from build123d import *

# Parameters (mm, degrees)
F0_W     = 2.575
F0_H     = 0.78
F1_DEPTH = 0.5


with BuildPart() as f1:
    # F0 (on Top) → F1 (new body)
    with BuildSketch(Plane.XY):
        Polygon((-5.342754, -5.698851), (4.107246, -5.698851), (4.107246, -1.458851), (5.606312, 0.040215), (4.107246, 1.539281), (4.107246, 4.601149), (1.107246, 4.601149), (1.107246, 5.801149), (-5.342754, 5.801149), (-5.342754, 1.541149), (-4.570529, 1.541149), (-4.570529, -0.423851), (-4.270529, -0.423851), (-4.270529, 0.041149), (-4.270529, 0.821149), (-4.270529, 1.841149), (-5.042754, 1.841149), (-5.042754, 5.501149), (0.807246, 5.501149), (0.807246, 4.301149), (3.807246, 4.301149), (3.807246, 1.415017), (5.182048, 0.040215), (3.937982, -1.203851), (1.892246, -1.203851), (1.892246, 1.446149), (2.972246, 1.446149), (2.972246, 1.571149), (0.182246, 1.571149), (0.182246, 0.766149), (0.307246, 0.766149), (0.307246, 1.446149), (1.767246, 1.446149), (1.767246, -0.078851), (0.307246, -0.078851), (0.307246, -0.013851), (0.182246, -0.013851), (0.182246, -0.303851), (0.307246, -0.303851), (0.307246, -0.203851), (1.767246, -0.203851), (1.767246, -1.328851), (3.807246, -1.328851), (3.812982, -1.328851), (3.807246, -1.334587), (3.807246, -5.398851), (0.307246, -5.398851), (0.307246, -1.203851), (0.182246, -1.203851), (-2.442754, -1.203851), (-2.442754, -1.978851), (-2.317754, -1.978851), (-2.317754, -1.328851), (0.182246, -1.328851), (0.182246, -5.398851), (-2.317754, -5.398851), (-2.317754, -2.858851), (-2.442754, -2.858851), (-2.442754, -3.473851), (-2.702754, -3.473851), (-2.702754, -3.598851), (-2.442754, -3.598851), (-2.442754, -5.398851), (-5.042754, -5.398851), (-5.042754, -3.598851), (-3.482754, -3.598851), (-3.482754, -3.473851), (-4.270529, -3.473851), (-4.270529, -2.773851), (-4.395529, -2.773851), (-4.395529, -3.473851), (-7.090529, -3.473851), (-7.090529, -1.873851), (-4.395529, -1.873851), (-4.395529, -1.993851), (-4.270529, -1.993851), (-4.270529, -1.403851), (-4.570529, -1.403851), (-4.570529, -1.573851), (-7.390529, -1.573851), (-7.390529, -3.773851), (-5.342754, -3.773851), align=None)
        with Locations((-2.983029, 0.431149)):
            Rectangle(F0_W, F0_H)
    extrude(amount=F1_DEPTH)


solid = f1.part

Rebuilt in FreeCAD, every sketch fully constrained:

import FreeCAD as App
import Part
import Sketcher

V = App.Vector
Q = App.Units.Quantity

doc = App.newDocument("Part")
params = doc.addObject("Spreadsheet::Sheet", "Params")
for row, (alias, value) in enumerate([
    ("sketch1_width", "3 mm"),
    ("sketch1_width2", "0.3 mm"),
    ("sketch1_width3", "3.5 mm"),
    ("sketch1_width4", "2.5 mm"),
    ("sketch1_width5", "2.6 mm"),
    ("pad1_length", "0.5 mm"),
], start=1):
    params.set(f"A{row}", alias)
    params.set(f"B{row}", "=" + value)
    params.setAlias(f"B{row}", alias)

body = doc.addObject("PartDesign::Body", "Body")

# Sketch on XY plane
sketch1 = doc.addObject("Sketcher::SketchObject", "Sketch")
body.addObject(sketch1)
sketch1.AttachmentSupport = (doc.XY_Plane, [""])
sketch1.MapMode = "FlatFace"
sketch1.addGeometry([
    Part.LineSegment(V(-5.342754, -5.698851, 0), V(4.107246, -5.698851, 0)),  # 0
    Part.LineSegment(V(4.107246, -5.698851, 0), V(4.107246, -1.458851, 0)),  # 1
    Part.LineSegment(V(4.107246, -1.458851, 0), V(5.606312, 0.040215, 0)),  # 2
    Part.LineSegment(V(5.606312, 0.040215, 0), V(4.107246, 1.539281, 0)),  # 3
    Part.LineSegment(V(4.107246, 1.539281, 0), V(4.107246, 4.601149, 0)),  # 4
    Part.LineSegment(V(4.107246, 4.601149, 0), V(1.107246, 4.601149, 0)),  # 5
    Part.LineSegment(V(1.107246, 4.601149, 0), V(1.107246, 5.801149, 0)),  # 6
    Part.LineSegment(V(1.107246, 5.801149, 0), V(-5.342754, 5.801149, 0)),  # 7
    Part.LineSegment(V(-5.342754, 5.801149, 0), V(-5.342754, 1.541149, 0)),  # 8
    Part.LineSegment(V(-5.342754, 1.541149, 0), V(-4.570529, 1.541149, 0)),  # 9
    Part.LineSegment(V(-4.570529, 1.541149, 0), V(-4.570529, -0.423851, 0)),  # 10
    Part.LineSegment(V(-4.570529, -0.423851, 0), V(-4.270529, -0.423851, 0)),  # 11
    Part.LineSegment(V(-4.270529, -0.423851, 0), V(-4.270529, 0.041149, 0)),  # 12
    Part.LineSegment(V(-4.270529, 0.041149, 0), V(-1.695529, 0.041149, 0)),  # 13
    Part.LineSegment(V(-1.695529, 0.041149, 0), V(-1.695529, 0.821149, 0)),  # 14
    Part.LineSegment(V(-1.695529, 0.821149, 0), V(-4.270529, 0.821149, 0)),  # 15
    Part.LineSegment(V(-4.270529, 0.821149, 0), V(-4.270529, 1.841149, 0)),  # 16
    Part.LineSegment(V(-4.270529, 1.841149, 0), V(-5.042754, 1.841149, 0)),  # 17
    Part.LineSegment(V(-5.042754, 1.841149, 0), V(-5.042754, 5.501149, 0)),  # 18
    Part.LineSegment(V(-5.042754, 5.501149, 0), V(0.807246, 5.501149, 0)),  # 19
    Part.LineSegment(V(0.807246, 5.501149, 0), V(0.807246, 4.301149, 0)),  # 20
    Part.LineSegment(V(0.807246, 4.301149, 0), V(3.807246, 4.301149, 0)),  # 21
    Part.LineSegment(V(3.807246, 4.301149, 0), V(3.807246, 1.415017, 0)),  # 22
    Part.LineSegment(V(3.807246, 1.415017, 0), V(5.182048, 0.040215, 0)),  # 23
    Part.LineSegment(V(5.182048, 0.040215, 0), V(3.937982, -1.203851, 0)),  # 24
    Part.LineSegment(V(3.937982, -1.203851, 0), V(1.892246, -1.203851, 0)),  # 25
    Part.LineSegment(V(1.892246, -1.203851, 0), V(1.892246, 1.446149, 0)),  # 26
    Part.LineSegment(V(1.892246, 1.446149, 0), V(2.972246, 1.446149, 0)),  # 27
    Part.LineSegment(V(2.972246, 1.446149, 0), V(2.972246, 1.571149, 0)),  # 28
    Part.LineSegment(V(2.972246, 1.571149, 0), V(0.182246, 1.571149, 0)),  # 29
    Part.LineSegment(V(0.182246, 1.571149, 0), V(0.182246, 0.766149, 0)),  # 30
    Part.LineSegment(V(0.182246, 0.766149, 0), V(0.307246, 0.766149, 0)),  # 31
    Part.LineSegment(V(0.307246, 0.766149, 0), V(0.307246, 1.446149, 0)),  # 32
    Part.LineSegment(V(0.307246, 1.446149, 0), V(1.767246, 1.446149, 0)),  # 33
    Part.LineSegment(V(1.767246, 1.446149, 0), V(1.767246, -0.078851, 0)),  # 34
    Part.LineSegment(V(1.767246, -0.078851, 0), V(0.307246, -0.078851, 0)),  # 35
    Part.LineSegment(V(0.307246, -0.078851, 0), V(0.307246, -0.013851, 0)),  # 36
    Part.LineSegment(V(0.307246, -0.013851, 0), V(0.182246, -0.013851, 0)),  # 37
    Part.LineSegment(V(0.182246, -0.013851, 0), V(0.182246, -0.303851, 0)),  # 38
    Part.LineSegment(V(0.182246, -0.303851, 0), V(0.307246, -0.303851, 0)),  # 39
    Part.LineSegment(V(0.307246, -0.303851, 0), V(0.307246, -0.203851, 0)),  # 40
    Part.LineSegment(V(0.307246, -0.203851, 0), V(1.767246, -0.203851, 0)),  # 41
    Part.LineSegment(V(1.767246, -0.203851, 0), V(1.767246, -1.328851, 0)),  # 42
    Part.LineSegment(V(1.767246, -1.328851, 0), V(3.812982, -1.328851, 0)),  # 43
    Part.LineSegment(V(3.812982, -1.328851, 0), V(3.807246, -1.334587, 0)),  # 44
    Part.LineSegment(V(3.807246, -1.334587, 0), V(3.807246, -5.398851, 0)),  # 45
    Part.LineSegment(V(3.807246, -5.398851, 0), V(0.307246, -5.398851, 0)),  # 46
    Part.LineSegment(V(0.307246, -5.398851, 0), V(0.307246, -1.203851, 0)),  # 47
    Part.LineSegment(V(0.307246, -1.203851, 0), V(-2.442754, -1.203851, 0)),  # 48
    Part.LineSegment(V(-2.442754, -1.203851, 0), V(-2.442754, -1.978851, 0)),  # 49
    Part.LineSegment(V(-2.442754, -1.978851, 0), V(-2.317754, -1.978851, 0)),  # 50
    Part.LineSegment(V(-2.317754, -1.978851, 0), V(-2.317754, -1.328851, 0)),  # 51
    Part.LineSegment(V(-2.317754, -1.328851, 0), V(0.182246, -1.328851, 0)),  # 52
    Part.LineSegment(V(0.182246, -1.328851, 0), V(0.182246, -5.398851, 0)),  # 53
    Part.LineSegment(V(0.182246, -5.398851, 0), V(-2.317754, -5.398851, 0)),  # 54
    Part.LineSegment(V(-2.317754, -5.398851, 0), V(-2.317754, -2.858851, 0)),  # 55
    Part.LineSegment(V(-2.317754, -2.858851, 0), V(-2.442754, -2.858851, 0)),  # 56
    Part.LineSegment(V(-2.442754, -2.858851, 0), V(-2.442754, -3.473851, 0)),  # 57
    Part.LineSegment(V(-2.442754, -3.473851, 0), V(-2.702754, -3.473851, 0)),  # 58
    Part.LineSegment(V(-2.702754, -3.473851, 0), V(-2.702754, -3.598851, 0)),  # 59
    Part.LineSegment(V(-2.702754, -3.598851, 0), V(-2.442754, -3.598851, 0)),  # 60
    Part.LineSegment(V(-2.442754, -3.598851, 0), V(-2.442754, -5.398851, 0)),  # 61
    Part.LineSegment(V(-2.442754, -5.398851, 0), V(-5.042754, -5.398851, 0)),  # 62
    Part.LineSegment(V(-5.042754, -5.398851, 0), V(-5.042754, -3.598851, 0)),  # 63
    Part.LineSegment(V(-5.042754, -3.598851, 0), V(-3.482754, -3.598851, 0)),  # 64
    Part.LineSegment(V(-3.482754, -3.598851, 0), V(-3.482754, -3.473851, 0)),  # 65
    Part.LineSegment(V(-3.482754, -3.473851, 0), V(-4.270529, -3.473851, 0)),  # 66
    Part.LineSegment(V(-4.270529, -3.473851, 0), V(-4.270529, -2.773851, 0)),  # 67
    Part.LineSegment(V(-4.270529, -2.773851, 0), V(-4.395529, -2.773851, 0)),  # 68
    Part.LineSegment(V(-4.395529, -2.773851, 0), V(-4.395529, -3.473851, 0)),  # 69
    Part.LineSegment(V(-4.395529, -3.473851, 0), V(-7.090529, -3.473851, 0)),  # 70
    Part.LineSegment(V(-7.090529, -3.473851, 0), V(-7.090529, -1.873851, 0)),  # 71
    Part.LineSegment(V(-7.090529, -1.873851, 0), V(-4.395529, -1.873851, 0)),  # 72
    Part.LineSegment(V(-4.395529, -1.873851, 0), V(-4.395529, -1.993851, 0)),  # 73
    Part.LineSegment(V(-4.395529, -1.993851, 0), V(-4.270529, -1.993851, 0)),  # 74
    Part.LineSegment(V(-4.270529, -1.993851, 0), V(-4.270529, -1.403851, 0)),  # 75
    Part.LineSegment(V(-4.270529, -1.403851, 0), V(-4.570529, -1.403851, 0)),  # 76
    Part.LineSegment(V(-4.570529, -1.403851, 0), V(-4.570529, -1.573851, 0)),  # 77
    Part.LineSegment(V(-4.570529, -1.573851, 0), V(-7.390529, -1.573851, 0)),  # 78
    Part.LineSegment(V(-7.390529, -1.573851, 0), V(-7.390529, -3.773851, 0)),  # 79
    Part.LineSegment(V(-7.390529, -3.773851, 0), V(-5.342754, -3.773851, 0)),  # 80
    Part.LineSegment(V(-5.342754, -3.773851, 0), V(-5.342754, -5.698851, 0)),  # 81
], False)
sketch1.addConstraint([
    Sketcher.Constraint("Coincident", 0, 2, 1, 1),
    Sketcher.Constraint("Coincident", 1, 2, 2, 1),
    Sketcher.Constraint("Coincident", 2, 2, 3, 1),
    Sketcher.Constraint("Coincident", 3, 2, 4, 1),
    Sketcher.Constraint("Coincident", 4, 2, 5, 1),
    Sketcher.Constraint("Coincident", 5, 2, 6, 1),
    Sketcher.Constraint("Coincident", 6, 2, 7, 1),
    Sketcher.Constraint("Coincident", 7, 2, 8, 1),
    Sketcher.Constraint("Coincident", 8, 2, 9, 1),
    Sketcher.Constraint("Coincident", 9, 2, 10, 1),
    Sketcher.Constraint("Coincident", 10, 2, 11, 1),
    Sketcher.Constraint("Coincident", 11, 2, 12, 1),
    Sketcher.Constraint("Coincident", 12, 2, 13, 1),
    Sketcher.Constraint("Coincident", 13, 2, 14, 1),
    Sketcher.Constraint("Coincident", 14, 2, 15, 1),
    Sketcher.Constraint("Coincident", 15, 2, 16, 1),
    Sketcher.Constraint("Coincident", 16, 2, 17, 1),
    Sketcher.Constraint("Coincident", 17, 2, 18, 1),
    Sketcher.Constraint("Coincident", 18, 2, 19, 1),
    Sketcher.Constraint("Coincident", 19, 2, 20, 1),
    Sketcher.Constraint("Coincident", 20, 2, 21, 1),
    Sketcher.Constraint("Coincident", 21, 2, 22, 1),
    Sketcher.Constraint("Coincident", 22, 2, 23, 1),
    Sketcher.Constraint("Coincident", 23, 2, 24, 1),
    Sketcher.Constraint("Coincident", 24, 2, 25, 1),
    Sketcher.Constraint("Coincident", 25, 2, 26, 1),
    Sketcher.Constraint("Coincident", 26, 2, 27, 1),
    Sketcher.Constraint("Coincident", 27, 2, 28, 1),
    Sketcher.Constraint("Coincident", 28, 2, 29, 1),
    Sketcher.Constraint("Coincident", 29, 2, 30, 1),
    Sketcher.Constraint("Coincident", 30, 2, 31, 1),
    Sketcher.Constraint("Coincident", 31, 2, 32, 1),
    Sketcher.Constraint("Coincident", 32, 2, 33, 1),
    Sketcher.Constraint("Coincident", 33, 2, 34, 1),
    Sketcher.Constraint("Coincident", 34, 2, 35, 1),
    Sketcher.Constraint("Coincident", 35, 2, 36, 1),
    Sketcher.Constraint("Coincident", 36, 2, 37, 1),
    Sketcher.Constraint("Coincident", 37, 2, 38, 1),
    Sketcher.Constraint("Coincident", 38, 2, 39, 1),
    Sketcher.Constraint("Coincident", 39, 2, 40, 1),
    Sketcher.Constraint("Coincident", 40, 2, 41, 1),
    Sketcher.Constraint("Coincident", 41, 2, 42, 1),
    Sketcher.Constraint("Coincident", 42, 2, 43, 1),
    Sketcher.Constraint("Coincident", 43, 2, 44, 1),
    Sketcher.Constraint("Coincident", 44, 2, 45, 1),
    Sketcher.Constraint("Coincident", 45, 2, 46, 1),
    Sketcher.Constraint("Coincident", 46, 2, 47, 1),
    Sketcher.Constraint("Coincident", 47, 2, 48, 1),
    Sketcher.Constraint("Coincident", 48, 2, 49, 1),
    Sketcher.Constraint("Coincident", 49, 2, 50, 1),
    Sketcher.Constraint("Coincident", 50, 2, 51, 1),
    Sketcher.Constraint("Coincident", 51, 2, 52, 1),
    Sketcher.Constraint("Coincident", 52, 2, 53, 1),
    Sketcher.Constraint("Coincident", 53, 2, 54, 1),
    Sketcher.Constraint("Coincident", 54, 2, 55, 1),
    Sketcher.Constraint("Coincident", 55, 2, 56, 1),
    Sketcher.Constraint("Coincident", 56, 2, 57, 1),
    Sketcher.Constraint("Coincident", 57, 2, 58, 1),
    Sketcher.Constraint("Coincident", 58, 2, 59, 1),
    Sketcher.Constraint("Coincident", 59, 2, 60, 1),
    Sketcher.Constraint("Coincident", 60, 2, 61, 1),
    Sketcher.Constraint("Coincident", 61, 2, 62, 1),
    Sketcher.Constraint("Coincident", 62, 2, 63, 1),
    Sketcher.Constraint("Coincident", 63, 2, 64, 1),
    Sketcher.Constraint("Coincident", 64, 2, 65, 1),
    Sketcher.Constraint("Coincident", 65, 2, 66, 1),
    Sketcher.Constraint("Coincident", 66, 2, 67, 1),
    Sketcher.Constraint("Coincident", 67, 2, 68, 1),
    Sketcher.Constraint("Coincident", 68, 2, 69, 1),
    Sketcher.Constraint("Coincident", 69, 2, 70, 1),
    Sketcher.Constraint("Coincident", 70, 2, 71, 1),
    Sketcher.Constraint("Coincident", 71, 2, 72, 1),
    Sketcher.Constraint("Coincident", 72, 2, 73, 1),
    Sketcher.Constraint("Coincident", 73, 2, 74, 1),
    Sketcher.Constraint("Coincident", 74, 2, 75, 1),
    Sketcher.Constraint("Coincident", 75, 2, 76, 1),
    Sketcher.Constraint("Coincident", 76, 2, 77, 1),
    Sketcher.Constraint("Coincident", 77, 2, 78, 1),
    Sketcher.Constraint("Coincident", 78, 2, 79, 1),
    Sketcher.Constraint("Coincident", 79, 2, 80, 1),
    Sketcher.Constraint("Coincident", 80, 2, 81, 1),
    Sketcher.Constraint("Coincident", 81, 2, 0, 1),
    Sketcher.Constraint("Horizontal", 0),
    Sketcher.Constraint("Vertical", 1),
    Sketcher.Constraint("Vertical", 4),
    Sketcher.Constraint("Horizontal", 5),
    Sketcher.Constraint("Vertical", 6),
    Sketcher.Constraint("Horizontal", 7),
    Sketcher.Constraint("Vertical", 8),
    Sketcher.Constraint("Horizontal", 9),
    Sketcher.Constraint("Vertical", 10),
    Sketcher.Constraint("Horizontal", 11),
    Sketcher.Constraint("Vertical", 12),
    Sketcher.Constraint("Horizontal", 13),
    Sketcher.Constraint("Vertical", 14),
    Sketcher.Constraint("Horizontal", 15),
    Sketcher.Constraint("Vertical", 16),
    Sketcher.Constraint("Horizontal", 17),
    Sketcher.Constraint("Vertical", 18),
    Sketcher.Constraint("Horizontal", 19),
    Sketcher.Constraint("Vertical", 20),
    Sketcher.Constraint("Horizontal", 21),
    Sketcher.Constraint("Vertical", 22),
    Sketcher.Constraint("Horizontal", 25),
    Sketcher.Constraint("Vertical", 26),
    Sketcher.Constraint("Horizontal", 27),
    Sketcher.Constraint("Vertical", 28),
    Sketcher.Constraint("Horizontal", 29),
    Sketcher.Constraint("Vertical", 30),
    Sketcher.Constraint("Horizontal", 31),
    Sketcher.Constraint("Vertical", 32),
    Sketcher.Constraint("Horizontal", 33),
    Sketcher.Constraint("Vertical", 34),
    Sketcher.Constraint("Horizontal", 35),
    Sketcher.Constraint("Vertical", 36),
    Sketcher.Constraint("Horizontal", 37),
    Sketcher.Constraint("Vertical", 38),
    Sketcher.Constraint("Horizontal", 39),
    Sketcher.Constraint("Vertical", 40),
    Sketcher.Constraint("Horizontal", 41),
    Sketcher.Constraint("Vertical", 42),
    Sketcher.Constraint("Horizontal", 43),
    Sketcher.Constraint("Vertical", 45),
    Sketcher.Constraint("Horizontal", 46),
    Sketcher.Constraint("Vertical", 47),
    Sketcher.Constraint("Horizontal", 48),
    Sketcher.Constraint("Vertical", 49),
    Sketcher.Constraint("Horizontal", 50),
    Sketcher.Constraint("Vertical", 51),
    Sketcher.Constraint("Horizontal", 52),
    Sketcher.Constraint("Vertical", 53),
    Sketcher.Constraint("Horizontal", 54),
    Sketcher.Constraint("Vertical", 55),
    Sketcher.Constraint("Horizontal", 56),
    Sketcher.Constraint("Vertical", 57),
    Sketcher.Constraint("Horizontal", 58),
    Sketcher.Constraint("Vertical", 59),
    Sketcher.Constraint("Horizontal", 60),
    Sketcher.Constraint("Vertical", 61),
    Sketcher.Constraint("Horizontal", 62),
    Sketcher.Constraint("Vertical", 63),
    Sketcher.Constraint("Horizontal", 64),
    Sketcher.Constraint("Vertical", 65),
    Sketcher.Constraint("Horizontal", 66),
    Sketcher.Constraint("Vertical", 67),
    Sketcher.Constraint("Horizontal", 68),
    Sketcher.Constraint("Vertical", 69),
    Sketcher.Constraint("Horizontal", 70),
    Sketcher.Constraint("Vertical", 71),
    Sketcher.Constraint("Horizontal", 72),
    Sketcher.Constraint("Vertical", 73),
    Sketcher.Constraint("Horizontal", 74),
    Sketcher.Constraint("Vertical", 75),
    Sketcher.Constraint("Horizontal", 76),
    Sketcher.Constraint("Vertical", 77),
    Sketcher.Constraint("Horizontal", 78),
    Sketcher.Constraint("Vertical", 79),
    Sketcher.Constraint("Horizontal", 80),
    Sketcher.Constraint("Vertical", 81),
    Sketcher.Constraint("Perpendicular", 2, 3),
    Sketcher.Constraint("Parallel", 3, 23),
    Sketcher.Constraint("Perpendicular", 23, 24),
    Sketcher.Constraint("Parallel", 24, 44),
    Sketcher.Constraint("Horizontal", 2, 2, 23, 2),
    Sketcher.Constraint("Horizontal", 27, 2, 32, 2),
    Sketcher.Constraint("Horizontal", 25, 2, 47, 2),
    Sketcher.Constraint("Horizontal", 43, 2, 51, 2),
    Sketcher.Constraint("Horizontal", 46, 2, 53, 2),
    Sketcher.Constraint("Horizontal", 54, 2, 61, 2),
    Sketcher.Constraint("Horizontal", 60, 2, 63, 2),
    Sketcher.Constraint("Horizontal", 58, 2, 65, 2),
    Sketcher.Constraint("Horizontal", 66, 2, 69, 2),
    Sketcher.Constraint("Vertical", 1, 2, 3, 2),
    Sketcher.Constraint("Vertical", 12, 2, 15, 2),
    Sketcher.Constraint("Vertical", 32, 2, 35, 2),
    Sketcher.Constraint("Vertical", 30, 2, 37, 2),
    Sketcher.Constraint("Vertical", 36, 2, 39, 2),
    Sketcher.Constraint("Vertical", 34, 2, 41, 2),
    Sketcher.Constraint("Vertical", 22, 2, 44, 2),
    Sketcher.Constraint("Vertical", 40, 2, 46, 2),
    Sketcher.Constraint("Vertical", 38, 2, 52, 2),
    Sketcher.Constraint("Vertical", 51, 2, 54, 2),
    Sketcher.Constraint("Vertical", 49, 2, 56, 2),
    Sketcher.Constraint("Vertical", 57, 2, 60, 2),
    Sketcher.Constraint("Vertical", 18, 2, 62, 2),
    Sketcher.Constraint("Vertical", 16, 2, 66, 2),
    Sketcher.Constraint("Vertical", 69, 2, 72, 2),
    Sketcher.Constraint("Vertical", 67, 2, 74, 2),
    Sketcher.Constraint("Vertical", 10, 2, 76, 2),
    Sketcher.Constraint("Vertical", 8, 2, 80, 2),
    Sketcher.Constraint("Equal", 9, 17),
    Sketcher.Constraint("Equal", 5, 21),
    Sketcher.Constraint("Equal", 25, 43),
    Sketcher.Constraint("Equal", 39, 50),
    Sketcher.Constraint("Equal", 56, 68),
    Sketcher.Constraint("Equal", 6, 20),
    Sketcher.Constraint("Equal", 74, 28),
    Sketcher.Constraint("Equal", 28, 59),
    Sketcher.Constraint("Equal", 2, 3),
    Sketcher.Constraint("DistanceX", 5, 2, 5, 1, Q("3 mm")),
    Sketcher.Constraint("DistanceX", 11, 1, 11, 2, Q("0.3 mm")),
    Sketcher.Constraint("DistanceX", 46, 2, 46, 1, Q("3.5 mm")),
    Sketcher.Constraint("DistanceX", 52, 1, 52, 2, Q("2.5 mm")),
    Sketcher.Constraint("DistanceX", 62, 2, 62, 1, Q("2.6 mm")),
    Sketcher.Constraint("DistanceY", 6, 1, 6, 2, Q("1.2 mm")),
    Sketcher.Constraint("DistanceY", 40, 1, 40, 2, Q("0.1 mm")),
    Sketcher.Constraint("DistanceY", 61, 2, 61, 1, Q("1.8 mm")),
    Sketcher.Constraint("DistanceY", 67, 1, 67, 2, Q("0.7 mm")),
    Sketcher.Constraint("DistanceY", 71, 1, 71, 2, Q("1.6 mm")),
    Sketcher.Constraint("DistanceY", 79, 2, 79, 1, Q("2.2 mm")),
    Sketcher.Constraint("DistanceX", 0, 1, 0, 2, Q("9.45 mm")),
    Sketcher.Constraint("DistanceX", 19, 1, 19, 2, Q("5.85 mm")),
    Sketcher.Constraint("DistanceX", 27, 1, 27, 2, Q("1.08 mm")),
    Sketcher.Constraint("DistanceX", 29, 2, 29, 1, Q("2.79 mm")),
    Sketcher.Constraint("DistanceX", 33, 1, 33, 2, Q("1.46 mm")),
    Sketcher.Constraint("DistanceX", 58, 2, 58, 1, Q("0.26 mm")),
    Sketcher.Constraint("DistanceX", 64, 1, 64, 2, Q("1.56 mm")),
    Sketcher.Constraint("DistanceX", 78, 2, 78, 1, Q("2.82 mm")),
    Sketcher.Constraint("DistanceY", 1, 1, 1, 2, Q("4.24 mm")),
    Sketcher.Constraint("DistanceY", 8, 2, 8, 1, Q("4.26 mm")),
    Sketcher.Constraint("DistanceY", 14, 1, 14, 2, Q("0.78 mm")),
    Sketcher.Constraint("DistanceY", 16, 1, 16, 2, Q("1.02 mm")),
    Sketcher.Constraint("DistanceY", 18, 1, 18, 2, Q("3.66 mm")),
    Sketcher.Constraint("DistanceY", 26, 1, 26, 2, Q("2.65 mm")),
    Sketcher.Constraint("DistanceY", 32, 1, 32, 2, Q("0.68 mm")),
    Sketcher.Constraint("DistanceY", 38, 2, 38, 1, Q("0.29 mm")),
    Sketcher.Constraint("DistanceY", 51, 1, 51, 2, Q("0.65 mm")),
    Sketcher.Constraint("DistanceY", 53, 2, 53, 1, Q("4.07 mm")),
    Sketcher.Constraint("DistanceY", 55, 1, 55, 2, Q("2.54 mm")),
    Sketcher.Constraint("DistanceY", 73, 2, 73, 1, Q("0.12 mm")),
    Sketcher.Constraint("DistanceY", 75, 1, 75, 2, Q("0.59 mm")),
    Sketcher.Constraint("DistanceY", 77, 2, 77, 1, Q("0.17 mm")),
    Sketcher.Constraint("Distance", 2, Q("2.119999 mm")),
    Sketcher.Constraint("DistanceX", 13, 1, 13, 2, Q("2.575 mm")),
    Sketcher.Constraint("DistanceX", 70, 2, 70, 1, Q("2.695 mm")),
    Sketcher.Constraint("DistanceY", 10, 2, 10, 1, Q("1.965 mm")),
    Sketcher.Constraint("DistanceY", 12, 1, 12, 2, Q("0.465 mm")),
    Sketcher.Constraint("DistanceY", 34, 2, 34, 1, Q("1.525 mm")),
    Sketcher.Constraint("DistanceY", 36, 1, 36, 2, Q("0.065 mm")),
    Sketcher.Constraint("DistanceY", 42, 2, 42, 1, Q("1.125 mm")),
    Sketcher.Constraint("DistanceY", 81, 2, 81, 1, Q("1.925 mm")),
    Sketcher.Constraint("DistanceY", 4, 1, 4, 2, Q("3.061868 mm")),
    Sketcher.Constraint("DistanceY", 22, 2, 22, 1, Q("2.886132 mm")),
    Sketcher.Constraint("DistanceX", 9, 1, 9, 2, Q("0.772225 mm")),
    Sketcher.Constraint("DistanceY", 0, 2, -1, 1, Q("5.698851 mm")),
    Sketcher.Constraint("DistanceX", 9, 2, -1, 1, Q("4.570529 mm")),
])
sketch1.setExpression("Constraints[199]", "Params.sketch1_width")
sketch1.setExpression("Constraints[200]", "Params.sketch1_width2")
sketch1.setExpression("Constraints[201]", "Params.sketch1_width3")
sketch1.setExpression("Constraints[202]", "Params.sketch1_width4")
sketch1.setExpression("Constraints[203]", "Params.sketch1_width5")
pad1 = doc.addObject("PartDesign::Pad", "Pad")
body.addObject(pad1)
pad1.Profile = sketch1
pad1.setExpression("Length", "Params.pad1_length")

doc.recompute()
